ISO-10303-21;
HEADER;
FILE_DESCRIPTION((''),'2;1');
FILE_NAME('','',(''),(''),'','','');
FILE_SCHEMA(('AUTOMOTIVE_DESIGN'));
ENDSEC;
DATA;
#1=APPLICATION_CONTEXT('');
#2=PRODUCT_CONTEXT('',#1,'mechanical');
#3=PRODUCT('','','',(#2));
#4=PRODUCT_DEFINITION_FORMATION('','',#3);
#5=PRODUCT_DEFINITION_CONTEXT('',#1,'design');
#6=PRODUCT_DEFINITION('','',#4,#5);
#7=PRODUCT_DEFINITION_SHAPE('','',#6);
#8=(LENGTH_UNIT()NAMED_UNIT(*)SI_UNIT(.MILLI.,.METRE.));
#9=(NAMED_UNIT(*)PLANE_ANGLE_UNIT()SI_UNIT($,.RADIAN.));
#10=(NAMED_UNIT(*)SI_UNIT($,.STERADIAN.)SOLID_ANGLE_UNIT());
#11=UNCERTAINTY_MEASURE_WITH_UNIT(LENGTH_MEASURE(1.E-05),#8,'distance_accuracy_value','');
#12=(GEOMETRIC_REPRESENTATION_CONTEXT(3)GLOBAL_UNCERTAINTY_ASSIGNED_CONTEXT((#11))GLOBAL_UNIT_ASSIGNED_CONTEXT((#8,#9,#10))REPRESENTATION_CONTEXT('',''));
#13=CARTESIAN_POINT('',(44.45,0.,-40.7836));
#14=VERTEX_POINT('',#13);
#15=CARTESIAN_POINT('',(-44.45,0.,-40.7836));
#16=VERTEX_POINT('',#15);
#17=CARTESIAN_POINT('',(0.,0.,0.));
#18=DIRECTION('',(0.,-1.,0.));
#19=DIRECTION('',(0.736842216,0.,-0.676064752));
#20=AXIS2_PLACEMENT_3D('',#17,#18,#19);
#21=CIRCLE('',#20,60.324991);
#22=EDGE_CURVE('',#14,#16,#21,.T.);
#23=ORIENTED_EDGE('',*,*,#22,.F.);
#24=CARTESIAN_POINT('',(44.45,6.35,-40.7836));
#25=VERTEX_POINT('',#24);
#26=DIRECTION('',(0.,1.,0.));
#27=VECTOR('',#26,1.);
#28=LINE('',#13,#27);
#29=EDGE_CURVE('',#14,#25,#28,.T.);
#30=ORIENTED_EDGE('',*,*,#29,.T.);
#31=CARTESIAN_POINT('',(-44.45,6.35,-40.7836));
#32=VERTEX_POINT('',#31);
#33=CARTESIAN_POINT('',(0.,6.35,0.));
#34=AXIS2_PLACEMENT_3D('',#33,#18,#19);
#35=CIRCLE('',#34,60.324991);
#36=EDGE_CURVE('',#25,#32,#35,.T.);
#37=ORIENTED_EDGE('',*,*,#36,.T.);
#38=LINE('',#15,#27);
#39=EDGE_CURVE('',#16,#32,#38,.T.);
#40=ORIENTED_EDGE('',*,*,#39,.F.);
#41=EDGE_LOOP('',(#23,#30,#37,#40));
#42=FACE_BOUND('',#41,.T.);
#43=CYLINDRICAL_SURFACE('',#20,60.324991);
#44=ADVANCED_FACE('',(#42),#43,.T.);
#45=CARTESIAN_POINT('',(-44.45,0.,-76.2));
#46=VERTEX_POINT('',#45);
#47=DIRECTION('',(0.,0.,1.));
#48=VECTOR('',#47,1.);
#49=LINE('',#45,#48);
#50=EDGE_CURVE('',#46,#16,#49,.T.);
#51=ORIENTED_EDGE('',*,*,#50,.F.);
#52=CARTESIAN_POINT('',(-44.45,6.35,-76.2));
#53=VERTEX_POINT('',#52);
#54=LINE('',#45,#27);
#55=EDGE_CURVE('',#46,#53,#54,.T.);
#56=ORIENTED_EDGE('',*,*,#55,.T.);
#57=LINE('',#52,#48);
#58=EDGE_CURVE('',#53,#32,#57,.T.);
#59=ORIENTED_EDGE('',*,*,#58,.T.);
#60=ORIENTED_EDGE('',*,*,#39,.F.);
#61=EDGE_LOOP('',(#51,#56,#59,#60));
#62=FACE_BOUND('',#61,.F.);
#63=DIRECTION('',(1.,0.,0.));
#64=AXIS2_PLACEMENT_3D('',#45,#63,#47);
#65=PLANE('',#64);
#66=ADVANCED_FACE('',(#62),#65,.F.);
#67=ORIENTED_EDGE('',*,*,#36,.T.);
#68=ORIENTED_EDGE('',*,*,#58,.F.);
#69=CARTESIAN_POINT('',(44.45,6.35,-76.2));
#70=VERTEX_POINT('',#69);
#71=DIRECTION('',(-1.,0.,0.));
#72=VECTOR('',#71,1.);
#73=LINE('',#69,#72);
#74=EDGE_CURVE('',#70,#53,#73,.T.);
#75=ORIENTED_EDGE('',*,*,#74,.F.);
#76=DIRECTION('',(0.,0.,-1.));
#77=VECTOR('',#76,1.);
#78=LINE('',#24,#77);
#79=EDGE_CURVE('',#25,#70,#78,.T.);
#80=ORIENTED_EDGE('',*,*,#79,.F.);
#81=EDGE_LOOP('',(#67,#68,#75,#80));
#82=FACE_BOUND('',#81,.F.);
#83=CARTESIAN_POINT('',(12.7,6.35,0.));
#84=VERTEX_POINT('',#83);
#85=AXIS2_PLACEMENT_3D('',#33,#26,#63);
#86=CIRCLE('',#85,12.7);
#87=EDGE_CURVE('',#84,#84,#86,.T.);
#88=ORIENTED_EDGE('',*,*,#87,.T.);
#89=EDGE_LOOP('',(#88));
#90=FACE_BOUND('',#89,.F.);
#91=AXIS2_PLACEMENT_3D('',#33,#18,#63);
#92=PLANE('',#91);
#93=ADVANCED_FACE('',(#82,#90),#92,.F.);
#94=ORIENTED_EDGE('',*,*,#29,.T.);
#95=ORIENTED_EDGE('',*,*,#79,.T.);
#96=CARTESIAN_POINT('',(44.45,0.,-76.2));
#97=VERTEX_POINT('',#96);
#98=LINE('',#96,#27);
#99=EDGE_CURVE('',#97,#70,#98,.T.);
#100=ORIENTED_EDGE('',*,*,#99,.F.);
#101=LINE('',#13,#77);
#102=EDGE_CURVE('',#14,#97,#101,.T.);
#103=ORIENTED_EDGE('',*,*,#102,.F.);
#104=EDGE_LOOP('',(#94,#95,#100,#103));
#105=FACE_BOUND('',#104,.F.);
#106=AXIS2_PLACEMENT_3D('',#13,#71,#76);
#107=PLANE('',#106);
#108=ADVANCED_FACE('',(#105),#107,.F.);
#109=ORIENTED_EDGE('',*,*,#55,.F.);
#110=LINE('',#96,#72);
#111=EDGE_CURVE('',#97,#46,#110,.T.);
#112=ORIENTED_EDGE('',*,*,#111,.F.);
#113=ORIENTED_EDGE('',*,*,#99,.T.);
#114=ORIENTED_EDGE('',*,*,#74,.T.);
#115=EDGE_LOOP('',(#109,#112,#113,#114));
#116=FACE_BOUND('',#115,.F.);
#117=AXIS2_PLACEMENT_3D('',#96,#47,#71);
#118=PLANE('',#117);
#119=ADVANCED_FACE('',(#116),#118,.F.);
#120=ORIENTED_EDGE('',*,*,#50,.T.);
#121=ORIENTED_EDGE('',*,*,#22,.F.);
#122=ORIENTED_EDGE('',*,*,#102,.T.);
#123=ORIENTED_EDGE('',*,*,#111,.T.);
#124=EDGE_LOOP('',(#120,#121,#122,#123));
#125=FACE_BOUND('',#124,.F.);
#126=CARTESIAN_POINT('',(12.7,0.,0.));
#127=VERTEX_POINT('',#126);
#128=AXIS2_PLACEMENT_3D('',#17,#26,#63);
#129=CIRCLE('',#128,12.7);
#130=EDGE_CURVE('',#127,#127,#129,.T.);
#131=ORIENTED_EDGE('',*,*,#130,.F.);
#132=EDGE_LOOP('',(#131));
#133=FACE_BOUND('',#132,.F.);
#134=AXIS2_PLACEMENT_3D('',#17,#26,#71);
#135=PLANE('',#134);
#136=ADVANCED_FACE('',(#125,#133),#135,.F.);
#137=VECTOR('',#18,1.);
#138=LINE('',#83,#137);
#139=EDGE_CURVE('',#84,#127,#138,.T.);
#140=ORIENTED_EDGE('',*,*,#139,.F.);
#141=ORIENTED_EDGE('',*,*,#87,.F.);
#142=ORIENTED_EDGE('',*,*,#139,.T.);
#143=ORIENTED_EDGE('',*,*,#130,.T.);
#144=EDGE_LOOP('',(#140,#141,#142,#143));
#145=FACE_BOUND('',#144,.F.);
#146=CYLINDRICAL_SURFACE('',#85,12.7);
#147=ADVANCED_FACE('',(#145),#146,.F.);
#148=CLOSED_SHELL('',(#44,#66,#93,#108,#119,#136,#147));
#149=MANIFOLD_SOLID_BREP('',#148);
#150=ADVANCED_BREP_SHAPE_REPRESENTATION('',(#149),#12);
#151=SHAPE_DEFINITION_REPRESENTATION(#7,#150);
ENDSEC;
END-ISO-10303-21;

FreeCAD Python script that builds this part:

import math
import FreeCAD as App
import Part
import Sketcher

V = App.Vector
Q = App.Units.Quantity

doc = App.newDocument("Part")
body = doc.addObject("PartDesign::Body", "Body")

# Sketch on XZ plane
sketch1 = body.newObject("Sketcher::SketchObject", "Sketch")
sketch1.AttachmentSupport = (doc.getObject("XZ_Plane"), [""])
sketch1.MapMode = "FlatFace"
sketch1.addGeometry([
    Part.LineSegment(V(-38.1, -69.85, 0), V(-38.1, -38.2321, 0)),
    Part.ArcOfCircle(Part.Circle(V(0, 0, 0), V(0, 0, 1), 53.975026), math.radians(-45.099156), math.radians(225.099156)),
    Part.LineSegment(V(38.1, -38.2321, 0), V(38.1, -69.85, 0)),
    Part.LineSegment(V(38.1, -69.85, 0), V(-38.1, -69.85, 0)),
], False)
sketch1.addConstraint([
    Sketcher.Constraint("Coincident", 0, 2, 1, 2),
    Sketcher.Constraint("Coincident", 1, 1, 2, 1),
    Sketcher.Constraint("Coincident", 2, 2, 3, 1),
    Sketcher.Constraint("Coincident", 3, 2, 0, 1),
    Sketcher.Constraint("Vertical", 0),
    Sketcher.Constraint("Vertical", 2),
    Sketcher.Constraint("Horizontal", 3),
    Sketcher.Constraint("Coincident", 1, 3, -1, 1),
    Sketcher.Constraint("Horizontal", 0, 2, 1, 1),
    Sketcher.Constraint("Radius", 1, Q("2.125 in")),
    Sketcher.Constraint("DistanceX", 0, 2, -1, 1, Q("1.5 in")),
    Sketcher.Constraint("DistanceY", 2, 2, -1, 1, Q("2.75 in")),
])
pad1 = body.newObject("PartDesign::Pad", "Pad")
pad1.Profile = sketch1
pad1.Length = Q("0.25 in")
pad1.Reversed = True

# Sketch on XZ plane
sketch2 = body.newObject("Sketcher::SketchObject", "Sketch001")
sketch2.AttachmentSupport = (doc.getObject("XZ_Plane"), [""])
sketch2.MapMode = "FlatFace"
sketch2.addGeometry([
    Part.LineSegment(V(44.45, -76.2, 0), V(44.45, -40.7836, 0)),  # 0
    Part.ArcOfCircle(Part.Circle(V(0, 0, 0), V(0, 0, 1), 60.324991), math.radians(-42.536889), math.radians(222.536889)),  # 1
    Part.LineSegment(V(-44.45, -40.7836, 0), V(-44.45, -76.2, 0)),  # 2
    Part.LineSegment(V(-44.45, -76.2, 0), V(44.45, -76.2, 0)),  # 3
    Part.ArcOfCircle(Part.Circle(V(0, 0, 0), V(0, 0, 1), 53.975026), math.radians(-45.099156), math.radians(225.099156)),  # 4
    Part.LineSegment(V(38.1, -38.2321, 0), V(38.1, -69.85, 0)),  # 5
    Part.LineSegment(V(38.1, -69.85, 0), V(-38.1, -69.85, 0)),  # 6
    Part.LineSegment(V(-38.1, -69.85, 0), V(-38.1, -38.2321, 0)),  # 7
], False)
sketch2.addConstraint([
    Sketcher.Constraint("Coincident", 0, 2, 1, 1),
    Sketcher.Constraint("Coincident", 1, 2, 2, 1),
    Sketcher.Constraint("Coincident", 2, 2, 3, 1),
    Sketcher.Constraint("Coincident", 3, 2, 0, 1),
    Sketcher.Constraint("Coincident", 4, 1, 5, 1),
    Sketcher.Constraint("Coincident", 5, 2, 6, 1),
    Sketcher.Constraint("Coincident", 6, 2, 7, 1),
    Sketcher.Constraint("Coincident", 7, 2, 4, 2),
    Sketcher.Constraint("Vertical", 0),
    Sketcher.Constraint("Vertical", 2),
    Sketcher.Constraint("Horizontal", 3),
    Sketcher.Constraint("Vertical", 5),
    Sketcher.Constraint("Horizontal", 6),
    Sketcher.Constraint("Vertical", 7),
    Sketcher.Constraint("Coincident", 1, 3, -1, 1),
    Sketcher.Constraint("Coincident", 4, 3, -1, 1),
    Sketcher.Constraint("Horizontal", 0, 2, 1, 2),
    Sketcher.Constraint("Horizontal", 4, 1, 7, 2),
    Sketcher.Constraint("DistanceX", 6, 2, 6, 1, Q("3 in")),
    Sketcher.Constraint("DistanceX", 4, 1, 0, 2, Q("0.25 in")),
    Sketcher.Constraint("DistanceY", 3, 2, 5, 2, Q("0.25 in")),
    Sketcher.Constraint("DistanceY", 2, 2, -1, 1, Q("3 in")),
    Sketcher.Constraint("Radius", 1, Q("2.375 in")),
    Sketcher.Constraint("Radius", 4, Q("2.125 in")),
])
pad2 = body.newObject("PartDesign::Pad", "Pad001")
pad2.Profile = sketch2
pad2.Length = Q("0.25 in")
pad2.Reversed = True

# Sketch on XZ plane
sketch3 = body.newObject("Sketcher::SketchObject", "Sketch002")
sketch3.AttachmentSupport = (doc.getObject("XZ_Plane"), [""])
sketch3.MapMode = "FlatFace"
sketch3.AttachmentOffset = App.Placement(V(0, 0, -0.25 * 25.4), App.Rotation())
sketch3.addGeometry(Part.Circle(V(0, 0, 0), V(0, 0, 1), 12.7), False)
sketch3.addConstraint([
    Sketcher.Constraint("Coincident", 0, 3, -1, 1),
    Sketcher.Constraint("Diameter", 0, Q("1 in")),
])
pocket1 = body.newObject("PartDesign::Pocket", "Pocket")
pocket1.Profile = sketch3
pocket1.Type = "ThroughAll"
pocket1.Reversed = True

doc.recompute()
